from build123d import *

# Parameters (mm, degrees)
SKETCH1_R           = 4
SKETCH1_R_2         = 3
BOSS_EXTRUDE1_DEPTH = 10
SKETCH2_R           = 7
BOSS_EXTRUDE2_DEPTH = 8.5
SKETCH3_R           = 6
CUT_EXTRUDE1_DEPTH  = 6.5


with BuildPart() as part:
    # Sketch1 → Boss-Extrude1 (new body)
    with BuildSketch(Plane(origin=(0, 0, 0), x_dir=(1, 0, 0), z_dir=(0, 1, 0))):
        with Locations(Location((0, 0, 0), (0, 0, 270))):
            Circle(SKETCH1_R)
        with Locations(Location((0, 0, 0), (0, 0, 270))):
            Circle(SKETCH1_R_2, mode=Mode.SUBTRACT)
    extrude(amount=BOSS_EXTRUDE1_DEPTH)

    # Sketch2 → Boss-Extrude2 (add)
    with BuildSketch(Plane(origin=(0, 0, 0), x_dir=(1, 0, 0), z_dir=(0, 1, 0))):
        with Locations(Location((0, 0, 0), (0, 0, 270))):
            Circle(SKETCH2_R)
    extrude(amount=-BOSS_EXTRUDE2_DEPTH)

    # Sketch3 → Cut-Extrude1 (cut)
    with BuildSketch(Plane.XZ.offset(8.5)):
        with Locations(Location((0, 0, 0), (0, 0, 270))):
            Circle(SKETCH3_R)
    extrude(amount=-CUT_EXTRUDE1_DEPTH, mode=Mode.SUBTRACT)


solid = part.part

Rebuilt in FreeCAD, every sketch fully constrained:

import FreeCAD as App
import Part
import Sketcher
from FreeCAD import Vector

doc = App.newDocument("Part")
body = doc.addObject("PartDesign::Body", "Body")

# Sketch on XZ plane
sketch1 = body.newObject("Sketcher::SketchObject", "Sketch")
sketch1.AttachmentSupport = (doc.getObject("XZ_Plane"), [""])
sketch1.MapMode = "FlatFace"
sketch1.addGeometry([
    Part.Circle(Vector(0, 0, 0), Vector(0, 0, 1), 4),
    Part.Circle(Vector(0, 0, 0), Vector(0, 0, 1), 3),
], False)
sketch1.addConstraint([
    Sketcher.Constraint("Coincident", 0, 3, -1, 1),
    Sketcher.Constraint("Coincident", 1, 3, -1, 1),
    Sketcher.Constraint("Diameter", 0, 8.0),
    Sketcher.Constraint("Diameter", 1, 6.0),
])
pad1 = body.newObject("PartDesign::Pad", "Pad")
pad1.Profile = sketch1
pad1.Length = 10
pad1.Reversed = True

# Sketch on XZ plane
sketch2 = body.newObject("Sketcher::SketchObject", "Sketch001")
sketch2.AttachmentSupport = (doc.getObject("XZ_Plane"), [""])
sketch2.MapMode = "FlatFace"
sketch2.addGeometry(Part.Circle(Vector(0, 0, 0), Vector(0, 0, 1), 7), False)
sketch2.addConstraint([
    Sketcher.Constraint("Coincident", 0, 3, -1, 1),
    Sketcher.Constraint("Diameter", 0, 14.0),
])
pad2 = body.newObject("PartDesign::Pad", "Pad001")
pad2.Profile = sketch2
pad2.Length = 8.5

# Sketch on XZ plane
sketch3 = body.newObject("Sketcher::SketchObject", "Sketch002")
sketch3.AttachmentSupport = (doc.getObject("XZ_Plane"), [""])
sketch3.MapMode = "FlatFace"
sketch3.AttachmentOffset = App.Placement(Vector(0, 0, 8.5), App.Rotation())
sketch3.addGeometry(Part.Circle(Vector(0, 0, 0), Vector(0, 0, 1), 6), False)
sketch3.addConstraint([
    Sketcher.Constraint("Coincident", 0, 3, -1, 1),
    Sketcher.Constraint("Diameter", 0, 12.0),
])
pocket1 = body.newObject("PartDesign::Pocket", "Pocket")
pocket1.Profile = sketch3
pocket1.Length = 6.5

doc.recompute()
